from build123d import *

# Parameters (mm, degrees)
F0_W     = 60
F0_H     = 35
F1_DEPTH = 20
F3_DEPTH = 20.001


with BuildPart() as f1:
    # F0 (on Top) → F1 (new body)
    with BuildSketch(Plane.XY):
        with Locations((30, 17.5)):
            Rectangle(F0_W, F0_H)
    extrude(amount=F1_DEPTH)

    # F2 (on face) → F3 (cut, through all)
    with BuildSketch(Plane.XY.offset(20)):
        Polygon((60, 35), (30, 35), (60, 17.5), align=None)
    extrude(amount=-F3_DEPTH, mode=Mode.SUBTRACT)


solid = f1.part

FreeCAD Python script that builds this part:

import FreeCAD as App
import Part
import Sketcher
Q = App.Units.Quantity


def add_polygon(sketch, points):
    """Adds a closed chain of lines whose ends are joined by coincident constraints."""
    first, n = sketch.GeometryCount, len(points)
    for a, b in zip(points, points[1:] + points[:1]):
        sketch.addGeometry(Part.LineSegment(App.Vector(*a, 0), App.Vector(*b, 0)), False)
    for i in range(n):
        sketch.addConstraint(Sketcher.Constraint("Coincident", first + i, 2, first + (i + 1) % n, 1))

doc = App.newDocument("Part")
body = doc.addObject("PartDesign::Body", "Body")

sketch1 = body.newObject("Sketcher::SketchObject", "Sketch")
sketch1.AttachmentSupport = (doc.getObject("XY_Plane"), [""])
sketch1.MapMode = "FlatFace"
add_polygon(sketch1, [(0, 35), (0, 0), (60, 0), (60, 35)])
sketch1.addConstraint([
    Sketcher.Constraint("Vertical", 0),
    Sketcher.Constraint("Horizontal", 1),
    Sketcher.Constraint("Vertical", 2),
    Sketcher.Constraint("Horizontal", 3),
    Sketcher.Constraint("Coincident", 0, 2, -1, 1),
    Sketcher.Constraint("DistanceX", 1, 1, 1, 2, Q("60 mm")),
    Sketcher.Constraint("DistanceY", 0, 2, 0, 1, Q("35 mm")),
])
pad1 = body.newObject("PartDesign::Pad", "Pad")
pad1.Profile = sketch1
pad1.Length = 20

sketch2 = body.newObject("Sketcher::SketchObject", "Sketch001")
sketch2.AttachmentSupport = (doc.getObject("XY_Plane"), [""])
sketch2.MapMode = "FlatFace"
sketch2.AttachmentOffset = App.Placement(App.Vector(0, 0, 20), App.Rotation())
add_polygon(sketch2, [(60, 35), (30, 35), (60, 18)])
sketch2.addConstraint([
    Sketcher.Constraint("Horizontal", 0),
    Sketcher.Constraint("Vertical", 2),
    Sketcher.Constraint("DistanceX", 0, 2, 0, 1, Q("30 mm")),
    Sketcher.Constraint("DistanceY", 2, 1, 2, 2, Q("17.5 mm")),
    Sketcher.Constraint("DistanceX", -1, 1, 0, 2, Q("30 mm")),
    Sketcher.Constraint("DistanceY", -1, 1, 0, 2, Q("35 mm")),
])
pocket1 = body.newObject("PartDesign::Pocket", "Pocket")
pocket1.Profile = sketch2
pocket1.Type = "ThroughAll"

doc.recompute()
